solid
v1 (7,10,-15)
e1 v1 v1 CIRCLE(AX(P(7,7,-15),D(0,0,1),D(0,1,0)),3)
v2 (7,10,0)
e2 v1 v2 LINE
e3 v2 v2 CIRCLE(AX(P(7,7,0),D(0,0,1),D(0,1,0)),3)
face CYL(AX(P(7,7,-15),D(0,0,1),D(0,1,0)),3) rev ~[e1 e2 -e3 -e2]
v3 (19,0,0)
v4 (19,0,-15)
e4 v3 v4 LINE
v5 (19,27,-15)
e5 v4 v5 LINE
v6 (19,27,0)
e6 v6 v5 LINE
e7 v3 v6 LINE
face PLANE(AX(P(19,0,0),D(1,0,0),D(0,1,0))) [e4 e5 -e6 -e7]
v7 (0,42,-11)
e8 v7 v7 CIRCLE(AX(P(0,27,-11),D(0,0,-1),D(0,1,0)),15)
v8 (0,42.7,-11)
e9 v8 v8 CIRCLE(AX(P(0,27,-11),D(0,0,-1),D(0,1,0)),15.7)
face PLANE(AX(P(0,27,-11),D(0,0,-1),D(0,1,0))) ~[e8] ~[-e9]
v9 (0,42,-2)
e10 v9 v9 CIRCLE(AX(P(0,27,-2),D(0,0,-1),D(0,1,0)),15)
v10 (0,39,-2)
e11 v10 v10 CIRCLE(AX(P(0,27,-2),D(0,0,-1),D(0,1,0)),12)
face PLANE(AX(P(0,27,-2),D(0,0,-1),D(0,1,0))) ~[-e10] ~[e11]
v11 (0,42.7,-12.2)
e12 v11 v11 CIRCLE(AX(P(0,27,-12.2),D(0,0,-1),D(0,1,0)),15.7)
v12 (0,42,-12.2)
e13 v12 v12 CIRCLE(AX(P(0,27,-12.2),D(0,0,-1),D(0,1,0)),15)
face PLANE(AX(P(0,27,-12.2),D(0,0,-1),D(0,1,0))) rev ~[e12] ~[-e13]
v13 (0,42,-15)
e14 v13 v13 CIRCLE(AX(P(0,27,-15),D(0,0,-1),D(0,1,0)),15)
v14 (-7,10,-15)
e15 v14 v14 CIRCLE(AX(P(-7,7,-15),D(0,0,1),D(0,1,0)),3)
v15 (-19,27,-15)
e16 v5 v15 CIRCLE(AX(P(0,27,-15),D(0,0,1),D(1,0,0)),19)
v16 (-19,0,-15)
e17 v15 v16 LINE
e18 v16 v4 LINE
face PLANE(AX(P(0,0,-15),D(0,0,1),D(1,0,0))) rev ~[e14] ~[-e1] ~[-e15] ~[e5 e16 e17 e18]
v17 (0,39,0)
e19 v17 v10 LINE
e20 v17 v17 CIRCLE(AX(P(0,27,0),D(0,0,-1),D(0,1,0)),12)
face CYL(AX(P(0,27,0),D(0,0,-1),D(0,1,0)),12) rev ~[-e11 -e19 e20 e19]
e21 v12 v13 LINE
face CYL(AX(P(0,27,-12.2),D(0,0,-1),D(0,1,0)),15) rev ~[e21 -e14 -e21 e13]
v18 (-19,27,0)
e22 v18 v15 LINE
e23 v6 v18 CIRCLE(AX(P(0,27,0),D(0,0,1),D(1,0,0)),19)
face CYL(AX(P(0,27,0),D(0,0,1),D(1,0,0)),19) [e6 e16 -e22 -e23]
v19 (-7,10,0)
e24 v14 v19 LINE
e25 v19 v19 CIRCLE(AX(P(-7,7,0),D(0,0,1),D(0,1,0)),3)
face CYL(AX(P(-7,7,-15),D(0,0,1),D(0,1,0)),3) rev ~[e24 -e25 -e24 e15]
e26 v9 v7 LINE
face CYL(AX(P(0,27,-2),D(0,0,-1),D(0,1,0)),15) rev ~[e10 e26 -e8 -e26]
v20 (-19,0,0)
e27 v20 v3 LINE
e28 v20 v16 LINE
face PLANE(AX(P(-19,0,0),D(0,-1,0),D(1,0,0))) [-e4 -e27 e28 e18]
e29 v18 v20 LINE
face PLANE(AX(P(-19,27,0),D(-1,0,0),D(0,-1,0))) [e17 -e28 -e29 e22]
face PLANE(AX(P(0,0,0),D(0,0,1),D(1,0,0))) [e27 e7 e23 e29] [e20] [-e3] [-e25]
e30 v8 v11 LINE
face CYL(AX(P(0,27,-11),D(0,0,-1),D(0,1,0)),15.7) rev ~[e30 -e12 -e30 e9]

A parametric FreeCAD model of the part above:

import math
import FreeCAD as App
import Part
import Sketcher

V = App.Vector
Q = App.Units.Quantity

doc = App.newDocument("Part")
body = doc.addObject("PartDesign::Body", "Body")

# Sketch on XY plane
sketch1 = body.newObject("Sketcher::SketchObject", "Sketch")
sketch1.AttachmentSupport = (doc.getObject("XY_Plane"), [""])
sketch1.MapMode = "FlatFace"
sketch1.addGeometry([
    Part.ArcOfCircle(Part.Circle(V(0, 27, 0), V(0, 0, 1), 19), math.radians(0), math.radians(180)),
    Part.LineSegment(V(-19, 27, 0), V(-19, 0, 0)),
    Part.LineSegment(V(-19, 0, 0), V(19, 0, 0)),
    Part.LineSegment(V(19, 0, 0), V(19, 27, 0)),
], False)
sketch1.addConstraint([
    Sketcher.Constraint("Tangent", 0, 2, 1, 1),
    Sketcher.Constraint("Coincident", 1, 2, 2, 1),
    Sketcher.Constraint("Coincident", 2, 2, 3, 1),
    Sketcher.Constraint("Tangent", 3, 2, 0, 1),
    Sketcher.Constraint("Vertical", 1),
    Sketcher.Constraint("Horizontal", 2),
    Sketcher.Constraint("Vertical", 3),
    Sketcher.Constraint("Symmetric", 1, 2, 2, 2, -1, 1),
    Sketcher.Constraint("Radius", 0, Q("19 mm")),
    Sketcher.Constraint("DistanceY", 1, 2, 1, 1, Q("27 mm")),
])
pad1 = body.newObject("PartDesign::Pad", "Pad")
pad1.Profile = sketch1
pad1.Length = 15
pad1.Reversed = True

# Sketch on YZ plane
sketch2 = body.newObject("Sketcher::SketchObject", "Sketch001")
sketch2.AttachmentSupport = (doc.getObject("YZ_Plane"), [""])
sketch2.MapMode = "FlatFace"
sketch2.addGeometry([
    Part.LineSegment(V(27, -2, 0), V(27, -15, 0)),  # 0
    Part.LineSegment(V(27, -15, 0), V(42, -15, 0)),  # 1
    Part.LineSegment(V(42, -15, 0), V(42, -12.2, 0)),  # 2
    Part.LineSegment(V(42, -12.2, 0), V(42.7, -12.2, 0)),  # 3
    Part.LineSegment(V(42.7, -12.2, 0), V(42.7, -11, 0)),  # 4
    Part.LineSegment(V(42.7, -11, 0), V(42, -11, 0)),  # 5
    Part.LineSegment(V(42, -11, 0), V(42, -2, 0)),  # 6
    Part.LineSegment(V(42, -2, 0), V(27, -2, 0)),  # 7
], False)
sketch2.addGeometry(Part.LineSegment(V(27, -2, 0), V(27, -15, 0)), True)  # axis
sketch2.addConstraint([
    Sketcher.Constraint("Coincident", 0, 2, 1, 1),
    Sketcher.Constraint("Coincident", 1, 2, 2, 1),
    Sketcher.Constraint("Coincident", 2, 2, 3, 1),
    Sketcher.Constraint("Coincident", 3, 2, 4, 1),
    Sketcher.Constraint("Coincident", 4, 2, 5, 1),
    Sketcher.Constraint("Coincident", 5, 2, 6, 1),
    Sketcher.Constraint("Coincident", 6, 2, 7, 1),
    Sketcher.Constraint("Coincident", 7, 2, 0, 1),
    Sketcher.Constraint("Vertical", 0),
    Sketcher.Constraint("Horizontal", 1),
    Sketcher.Constraint("Vertical", 2),
    Sketcher.Constraint("Horizontal", 3),
    Sketcher.Constraint("Vertical", 4),
    Sketcher.Constraint("Horizontal", 5),
    Sketcher.Constraint("Vertical", 6),
    Sketcher.Constraint("Horizontal", 7),
    Sketcher.Constraint("Vertical", 8),
    Sketcher.Constraint("Coincident", 8, 1, 7, 2),
    Sketcher.Constraint("Horizontal", 1, 2, 8, 2),
    Sketcher.Constraint("Vertical", 2, 2, 5, 2),
    Sketcher.Constraint("DistanceX", 1, 1, 1, 2, Q("15 mm")),
    Sketcher.Constraint("DistanceY", 0, 2, 0, 1, Q("13 mm")),
    Sketcher.Constraint("DistanceY", 6, 1, 6, 2, Q("9 mm")),
    Sketcher.Constraint("DistanceX", 3, 1, 3, 2, Q("0.7 mm")),
    Sketcher.Constraint("DistanceY", 2, 1, 2, 2, Q("2.8 mm")),
    Sketcher.Constraint("DistanceX", -1, 1, 0, 2, Q("27 mm")),
    Sketcher.Constraint("DistanceY", 0, 2, -1, 1, Q("15 mm")),
])
groove = body.newObject("PartDesign::Groove", "Groove")
groove.Profile = sketch2
groove.ReferenceAxis = (sketch2, ["Axis0"])
groove.Angle = 360

# Sketch on YZ plane
sketch3 = body.newObject("Sketcher::SketchObject", "Sketch002")
sketch3.AttachmentSupport = (doc.getObject("YZ_Plane"), [""])
sketch3.MapMode = "FlatFace"
sketch3.addGeometry([
    Part.LineSegment(V(27, 0, 0), V(27, -15, 0)),
    Part.LineSegment(V(27, -15, 0), V(39, -15, 0)),
    Part.LineSegment(V(39, -15, 0), V(39, 0, 0)),
    Part.LineSegment(V(39, 0, 0), V(27, 0, 0)),
], False)
sketch3.addGeometry(Part.LineSegment(V(27, 0, 0), V(27, -15, 0)), True)  # axis
sketch3.addConstraint([
    Sketcher.Constraint("Coincident", 0, 2, 1, 1),
    Sketcher.Constraint("Coincident", 1, 2, 2, 1),
    Sketcher.Constraint("Coincident", 2, 2, 3, 1),
    Sketcher.Constraint("Coincident", 3, 2, 0, 1),
    Sketcher.Constraint("Vertical", 0),
    Sketcher.Constraint("Horizontal", 1),
    Sketcher.Constraint("Vertical", 2),
    Sketcher.Constraint("Horizontal", 3),
    Sketcher.Constraint("Vertical", 4),
    Sketcher.Constraint("Coincident", 4, 1, 3, 2),
    Sketcher.Constraint("PointOnObject", 2, 2, -1),
    Sketcher.Constraint("Horizontal", 1, 2, 4, 2),
    Sketcher.Constraint("DistanceX", 1, 1, 1, 2, Q("12 mm")),
    Sketcher.Constraint("DistanceY", 0, 2, 0, 1, Q("15 mm")),
    Sketcher.Constraint("DistanceX", -1, 1, 0, 2, Q("27 mm")),
])
groove2 = body.newObject("PartDesign::Groove", "Groove001")
groove2.Profile = sketch3
groove2.ReferenceAxis = (sketch3, ["Axis0"])
groove2.Angle = 360

# Sketch on XY plane
sketch4 = body.newObject("Sketcher::SketchObject", "Sketch003")
sketch4.AttachmentSupport = (doc.getObject("XY_Plane"), [""])
sketch4.MapMode = "FlatFace"
sketch4.AttachmentOffset = App.Placement(V(0, 0, -15), App.Rotation())
sketch4.addGeometry(Part.Circle(V(-7, 7, 0), V(0, 0, 1), 3), False)
sketch4.addConstraint([
    Sketcher.Constraint("Diameter", 0, Q("6 mm")),
    Sketcher.Constraint("DistanceX", 0, 3, -1, 1, Q("7 mm")),
    Sketcher.Constraint("DistanceY", -1, 1, 0, 3, Q("7 mm")),
])
doc.recompute()
hole = body.newObject("PartDesign::Hole", "Hole")
hole.Profile = sketch4
hole.ThreadType = "None"
hole.Diameter = 6
hole.DepthType = "Dimension"
hole.Depth = 15
hole.DrillPoint = "Flat"
hole.Reversed = True
doc.recompute()

linearpattern = body.newObject("PartDesign::LinearPattern", "LinearPattern")
linearpattern.Originals = [hole]
linearpattern.Direction = (doc.getObject("X_Axis"), [""])
linearpattern.Mode = "offset"
linearpattern.Offset = 14
linearpattern.Occurrences = 2
body.Tip = linearpattern

doc.recompute()
